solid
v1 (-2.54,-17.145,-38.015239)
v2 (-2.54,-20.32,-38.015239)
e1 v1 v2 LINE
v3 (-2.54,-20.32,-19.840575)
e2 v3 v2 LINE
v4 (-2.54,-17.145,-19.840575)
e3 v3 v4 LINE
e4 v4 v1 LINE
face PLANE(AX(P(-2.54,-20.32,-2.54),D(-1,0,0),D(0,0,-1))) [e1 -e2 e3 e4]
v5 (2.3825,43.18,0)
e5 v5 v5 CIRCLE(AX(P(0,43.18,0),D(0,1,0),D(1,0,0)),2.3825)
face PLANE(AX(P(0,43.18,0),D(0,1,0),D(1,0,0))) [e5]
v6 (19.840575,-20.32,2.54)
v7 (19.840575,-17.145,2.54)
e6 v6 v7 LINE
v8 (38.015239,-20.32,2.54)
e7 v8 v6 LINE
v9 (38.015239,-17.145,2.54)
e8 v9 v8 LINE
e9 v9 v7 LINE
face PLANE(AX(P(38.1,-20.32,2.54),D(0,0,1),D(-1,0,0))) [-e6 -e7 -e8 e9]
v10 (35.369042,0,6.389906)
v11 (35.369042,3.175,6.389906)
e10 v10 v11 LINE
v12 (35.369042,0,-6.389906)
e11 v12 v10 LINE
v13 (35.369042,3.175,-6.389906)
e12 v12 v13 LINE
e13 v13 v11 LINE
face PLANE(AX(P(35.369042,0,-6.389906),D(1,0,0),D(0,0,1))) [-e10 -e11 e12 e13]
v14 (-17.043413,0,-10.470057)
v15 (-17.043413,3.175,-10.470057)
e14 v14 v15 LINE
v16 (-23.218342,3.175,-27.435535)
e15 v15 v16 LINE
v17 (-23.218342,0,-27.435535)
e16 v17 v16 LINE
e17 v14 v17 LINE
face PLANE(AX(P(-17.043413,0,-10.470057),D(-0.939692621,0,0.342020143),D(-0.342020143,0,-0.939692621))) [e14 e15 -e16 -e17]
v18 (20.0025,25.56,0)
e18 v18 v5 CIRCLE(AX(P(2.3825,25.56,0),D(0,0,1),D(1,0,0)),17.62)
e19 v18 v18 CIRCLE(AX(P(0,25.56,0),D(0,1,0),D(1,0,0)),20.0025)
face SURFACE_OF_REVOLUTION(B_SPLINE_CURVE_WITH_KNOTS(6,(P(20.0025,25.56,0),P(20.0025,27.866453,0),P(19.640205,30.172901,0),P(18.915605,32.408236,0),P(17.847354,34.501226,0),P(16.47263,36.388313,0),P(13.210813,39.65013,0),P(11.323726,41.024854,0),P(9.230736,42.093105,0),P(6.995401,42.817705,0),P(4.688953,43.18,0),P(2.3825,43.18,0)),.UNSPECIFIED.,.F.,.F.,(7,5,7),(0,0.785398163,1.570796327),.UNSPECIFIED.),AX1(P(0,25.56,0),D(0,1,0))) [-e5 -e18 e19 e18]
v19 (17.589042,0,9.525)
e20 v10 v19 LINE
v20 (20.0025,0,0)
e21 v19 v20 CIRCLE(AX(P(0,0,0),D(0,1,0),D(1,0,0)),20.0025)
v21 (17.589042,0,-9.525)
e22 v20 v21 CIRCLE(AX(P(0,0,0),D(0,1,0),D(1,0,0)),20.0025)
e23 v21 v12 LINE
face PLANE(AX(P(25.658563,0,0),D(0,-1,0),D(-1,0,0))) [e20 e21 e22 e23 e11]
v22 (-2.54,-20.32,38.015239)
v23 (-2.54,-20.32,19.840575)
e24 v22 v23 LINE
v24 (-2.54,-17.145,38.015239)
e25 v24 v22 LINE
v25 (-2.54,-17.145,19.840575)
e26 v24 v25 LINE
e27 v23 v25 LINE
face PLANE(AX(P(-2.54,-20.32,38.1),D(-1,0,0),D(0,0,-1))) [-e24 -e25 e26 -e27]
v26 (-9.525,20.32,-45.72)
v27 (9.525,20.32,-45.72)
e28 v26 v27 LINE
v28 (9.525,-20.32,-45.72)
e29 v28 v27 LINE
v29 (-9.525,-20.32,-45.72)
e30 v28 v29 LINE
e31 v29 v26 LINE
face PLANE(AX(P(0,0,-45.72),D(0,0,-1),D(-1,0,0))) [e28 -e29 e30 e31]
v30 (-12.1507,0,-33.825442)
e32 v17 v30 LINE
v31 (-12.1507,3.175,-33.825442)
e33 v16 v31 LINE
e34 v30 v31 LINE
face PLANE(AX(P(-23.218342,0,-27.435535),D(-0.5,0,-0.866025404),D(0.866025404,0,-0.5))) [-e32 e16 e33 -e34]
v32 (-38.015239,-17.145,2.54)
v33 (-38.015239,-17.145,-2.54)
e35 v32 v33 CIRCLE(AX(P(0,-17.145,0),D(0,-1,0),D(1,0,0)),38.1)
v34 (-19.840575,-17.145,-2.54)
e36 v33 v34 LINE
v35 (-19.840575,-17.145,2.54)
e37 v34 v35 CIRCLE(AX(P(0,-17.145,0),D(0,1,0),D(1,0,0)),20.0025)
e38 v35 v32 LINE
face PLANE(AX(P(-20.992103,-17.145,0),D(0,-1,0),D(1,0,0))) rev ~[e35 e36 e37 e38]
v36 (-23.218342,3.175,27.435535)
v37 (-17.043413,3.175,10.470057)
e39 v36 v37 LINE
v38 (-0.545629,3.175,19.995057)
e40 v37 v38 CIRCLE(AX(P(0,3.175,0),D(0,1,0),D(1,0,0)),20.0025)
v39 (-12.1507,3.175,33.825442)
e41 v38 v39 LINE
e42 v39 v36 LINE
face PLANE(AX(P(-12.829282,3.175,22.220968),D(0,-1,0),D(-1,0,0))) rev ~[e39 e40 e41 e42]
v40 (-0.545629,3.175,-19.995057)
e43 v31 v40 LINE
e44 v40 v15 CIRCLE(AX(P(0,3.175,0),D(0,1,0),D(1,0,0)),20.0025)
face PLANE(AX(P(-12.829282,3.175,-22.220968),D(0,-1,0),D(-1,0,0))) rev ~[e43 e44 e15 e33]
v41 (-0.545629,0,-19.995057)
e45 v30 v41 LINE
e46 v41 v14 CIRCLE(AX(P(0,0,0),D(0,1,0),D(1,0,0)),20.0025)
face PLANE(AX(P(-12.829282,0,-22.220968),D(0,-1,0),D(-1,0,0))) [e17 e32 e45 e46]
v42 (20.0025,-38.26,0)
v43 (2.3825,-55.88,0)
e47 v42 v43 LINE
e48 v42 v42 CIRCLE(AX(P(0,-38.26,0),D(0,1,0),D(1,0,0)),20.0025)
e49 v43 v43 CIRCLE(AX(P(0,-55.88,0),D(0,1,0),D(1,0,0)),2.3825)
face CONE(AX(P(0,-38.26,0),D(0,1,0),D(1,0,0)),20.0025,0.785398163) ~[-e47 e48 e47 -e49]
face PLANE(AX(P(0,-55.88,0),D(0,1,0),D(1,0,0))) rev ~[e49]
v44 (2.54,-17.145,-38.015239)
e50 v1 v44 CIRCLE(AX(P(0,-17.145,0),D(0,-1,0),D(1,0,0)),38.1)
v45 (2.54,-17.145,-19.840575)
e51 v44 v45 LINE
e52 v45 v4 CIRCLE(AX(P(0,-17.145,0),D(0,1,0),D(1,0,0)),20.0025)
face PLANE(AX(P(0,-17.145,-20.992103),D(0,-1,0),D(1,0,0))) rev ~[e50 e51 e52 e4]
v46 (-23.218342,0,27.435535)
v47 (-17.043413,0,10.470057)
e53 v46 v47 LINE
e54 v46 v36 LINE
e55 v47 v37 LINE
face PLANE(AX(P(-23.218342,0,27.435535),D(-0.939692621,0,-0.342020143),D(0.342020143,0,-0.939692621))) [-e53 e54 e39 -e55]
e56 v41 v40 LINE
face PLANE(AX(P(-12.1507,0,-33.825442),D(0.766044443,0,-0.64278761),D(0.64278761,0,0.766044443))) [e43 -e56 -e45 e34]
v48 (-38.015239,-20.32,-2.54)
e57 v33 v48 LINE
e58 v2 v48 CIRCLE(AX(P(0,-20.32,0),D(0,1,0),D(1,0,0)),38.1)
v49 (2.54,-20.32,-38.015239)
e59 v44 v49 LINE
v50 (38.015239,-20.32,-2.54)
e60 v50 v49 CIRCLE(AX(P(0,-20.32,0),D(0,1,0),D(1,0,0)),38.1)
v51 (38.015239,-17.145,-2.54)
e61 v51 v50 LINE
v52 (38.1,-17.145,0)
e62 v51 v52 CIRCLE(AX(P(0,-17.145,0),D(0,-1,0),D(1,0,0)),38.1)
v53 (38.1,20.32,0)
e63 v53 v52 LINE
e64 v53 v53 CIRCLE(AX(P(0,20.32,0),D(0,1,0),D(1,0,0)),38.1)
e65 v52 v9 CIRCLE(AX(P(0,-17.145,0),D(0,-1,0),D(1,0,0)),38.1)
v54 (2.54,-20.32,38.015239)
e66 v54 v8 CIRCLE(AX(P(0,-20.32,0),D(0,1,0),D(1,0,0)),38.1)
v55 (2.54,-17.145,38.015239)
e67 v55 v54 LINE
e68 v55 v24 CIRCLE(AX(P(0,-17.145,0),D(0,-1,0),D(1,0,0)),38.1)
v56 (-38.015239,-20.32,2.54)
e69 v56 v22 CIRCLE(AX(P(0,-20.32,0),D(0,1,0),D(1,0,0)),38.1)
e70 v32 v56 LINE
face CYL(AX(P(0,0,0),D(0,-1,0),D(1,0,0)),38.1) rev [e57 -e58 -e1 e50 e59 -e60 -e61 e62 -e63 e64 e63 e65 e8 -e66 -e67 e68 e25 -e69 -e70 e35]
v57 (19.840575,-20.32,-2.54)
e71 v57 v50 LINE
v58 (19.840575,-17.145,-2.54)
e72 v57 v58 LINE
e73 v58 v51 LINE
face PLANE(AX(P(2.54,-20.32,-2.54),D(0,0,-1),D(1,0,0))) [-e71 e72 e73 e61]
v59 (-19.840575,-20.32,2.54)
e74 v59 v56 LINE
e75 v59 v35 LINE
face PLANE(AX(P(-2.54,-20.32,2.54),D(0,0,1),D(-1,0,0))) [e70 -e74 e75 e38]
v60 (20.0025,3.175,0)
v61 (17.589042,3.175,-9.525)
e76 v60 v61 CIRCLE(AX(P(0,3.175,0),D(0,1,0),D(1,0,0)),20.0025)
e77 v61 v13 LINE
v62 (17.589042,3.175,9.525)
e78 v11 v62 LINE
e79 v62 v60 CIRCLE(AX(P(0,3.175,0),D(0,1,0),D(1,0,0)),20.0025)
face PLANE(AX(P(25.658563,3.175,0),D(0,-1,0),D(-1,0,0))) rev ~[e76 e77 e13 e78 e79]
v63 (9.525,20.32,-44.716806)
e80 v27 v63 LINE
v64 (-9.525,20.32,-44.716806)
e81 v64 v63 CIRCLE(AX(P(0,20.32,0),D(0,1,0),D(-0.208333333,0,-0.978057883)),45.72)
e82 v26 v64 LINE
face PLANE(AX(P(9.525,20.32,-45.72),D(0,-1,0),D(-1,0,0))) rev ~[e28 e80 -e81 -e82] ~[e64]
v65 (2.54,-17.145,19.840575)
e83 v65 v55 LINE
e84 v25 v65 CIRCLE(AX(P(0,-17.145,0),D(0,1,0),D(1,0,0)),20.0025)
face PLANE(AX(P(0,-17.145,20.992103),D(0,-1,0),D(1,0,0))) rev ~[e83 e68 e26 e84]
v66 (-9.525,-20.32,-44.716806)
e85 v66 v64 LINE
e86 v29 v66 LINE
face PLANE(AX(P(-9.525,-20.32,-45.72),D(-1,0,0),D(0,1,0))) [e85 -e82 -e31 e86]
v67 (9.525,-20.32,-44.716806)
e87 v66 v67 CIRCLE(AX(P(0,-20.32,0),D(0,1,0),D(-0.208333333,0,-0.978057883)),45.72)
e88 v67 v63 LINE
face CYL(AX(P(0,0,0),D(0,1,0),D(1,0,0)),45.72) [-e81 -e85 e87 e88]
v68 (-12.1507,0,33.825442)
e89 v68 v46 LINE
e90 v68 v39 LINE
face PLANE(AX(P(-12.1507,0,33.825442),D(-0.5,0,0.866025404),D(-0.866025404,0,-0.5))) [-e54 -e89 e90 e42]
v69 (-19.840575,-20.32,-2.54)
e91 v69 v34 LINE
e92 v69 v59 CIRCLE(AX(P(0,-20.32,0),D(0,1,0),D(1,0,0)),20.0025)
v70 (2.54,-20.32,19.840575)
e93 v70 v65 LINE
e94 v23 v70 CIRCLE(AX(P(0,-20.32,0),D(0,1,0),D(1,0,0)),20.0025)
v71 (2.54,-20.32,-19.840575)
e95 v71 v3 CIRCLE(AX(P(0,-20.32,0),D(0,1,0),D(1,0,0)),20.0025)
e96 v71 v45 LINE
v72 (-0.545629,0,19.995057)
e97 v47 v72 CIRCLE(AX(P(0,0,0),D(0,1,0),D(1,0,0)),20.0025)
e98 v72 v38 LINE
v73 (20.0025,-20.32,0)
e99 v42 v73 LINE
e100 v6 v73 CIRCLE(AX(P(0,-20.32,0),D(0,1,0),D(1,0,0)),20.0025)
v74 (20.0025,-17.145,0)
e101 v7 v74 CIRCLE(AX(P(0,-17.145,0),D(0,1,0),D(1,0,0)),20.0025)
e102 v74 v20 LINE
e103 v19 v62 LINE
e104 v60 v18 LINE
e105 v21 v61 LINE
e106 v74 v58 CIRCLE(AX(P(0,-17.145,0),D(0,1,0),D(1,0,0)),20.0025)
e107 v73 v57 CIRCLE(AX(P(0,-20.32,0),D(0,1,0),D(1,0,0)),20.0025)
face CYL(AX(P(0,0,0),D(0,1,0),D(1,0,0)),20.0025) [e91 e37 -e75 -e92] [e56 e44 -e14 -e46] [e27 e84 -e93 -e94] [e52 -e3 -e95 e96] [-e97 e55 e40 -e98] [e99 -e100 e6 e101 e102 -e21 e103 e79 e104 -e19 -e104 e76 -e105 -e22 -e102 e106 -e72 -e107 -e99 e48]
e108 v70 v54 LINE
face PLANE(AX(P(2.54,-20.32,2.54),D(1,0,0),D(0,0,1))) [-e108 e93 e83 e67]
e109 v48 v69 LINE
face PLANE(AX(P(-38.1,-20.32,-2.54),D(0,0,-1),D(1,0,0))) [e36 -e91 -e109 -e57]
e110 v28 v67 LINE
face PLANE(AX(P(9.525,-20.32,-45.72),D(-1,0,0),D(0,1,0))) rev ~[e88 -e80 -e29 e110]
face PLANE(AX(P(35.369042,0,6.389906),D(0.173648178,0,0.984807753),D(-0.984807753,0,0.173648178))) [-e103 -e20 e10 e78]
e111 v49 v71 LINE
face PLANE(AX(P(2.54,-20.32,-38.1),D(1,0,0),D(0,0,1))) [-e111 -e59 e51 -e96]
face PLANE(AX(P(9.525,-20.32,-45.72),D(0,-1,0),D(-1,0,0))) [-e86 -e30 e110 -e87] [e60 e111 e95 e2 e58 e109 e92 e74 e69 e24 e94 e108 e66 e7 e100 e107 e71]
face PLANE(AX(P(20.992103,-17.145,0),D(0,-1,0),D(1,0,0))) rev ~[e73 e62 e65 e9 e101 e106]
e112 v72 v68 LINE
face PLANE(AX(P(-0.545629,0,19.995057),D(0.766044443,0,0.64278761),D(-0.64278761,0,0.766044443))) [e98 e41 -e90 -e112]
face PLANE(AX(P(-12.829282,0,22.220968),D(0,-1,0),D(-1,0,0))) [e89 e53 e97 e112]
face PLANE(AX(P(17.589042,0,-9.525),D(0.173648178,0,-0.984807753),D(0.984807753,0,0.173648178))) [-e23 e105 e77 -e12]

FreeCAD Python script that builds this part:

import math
import FreeCAD as App
import Part
import Sketcher

V = App.Vector
Q = App.Units.Quantity


def edges_at(feature, points):
    """Names of the edges that pass closest to the given points."""
    edges = feature.Shape.Edges
    near = lambda p: min(range(len(edges)), key=lambda i: edges[i].distToShape(Part.Vertex(*p))[0])
    return sorted({f"Edge{near(p) + 1}" for p in points})


def add_polygon(sketch, points):
    """Adds a closed chain of lines whose ends are joined by coincident constraints."""
    first, n = sketch.GeometryCount, len(points)
    for a, b in zip(points, points[1:] + points[:1]):
        sketch.addGeometry(Part.LineSegment(App.Vector(*a, 0), App.Vector(*b, 0)), False)
    for i in range(n):
        sketch.addConstraint(Sketcher.Constraint("Coincident", first + i, 2, first + (i + 1) % n, 1))

doc = App.newDocument("Part")
body = doc.addObject("PartDesign::Body", "Body")

# Sketch on XZ plane
sketch1 = doc.addObject("Sketcher::SketchObject", "Sketch")
body.addObject(sketch1)
sketch1.AttachmentSupport = (doc.XZ_Plane, [""])
sketch1.MapMode = "FlatFace"
sketch1.addGeometry(Part.Circle(V(0, 0, 0), V(0, 0, 1), 46), False)
sketch1.addGeometry(Part.Circle(V(0, 0, 0), V(0, 0, 1), 38), False)
sketch1.addConstraint(Sketcher.Constraint("Coincident", 0, 3, -1, 1))
sketch1.addConstraint(Sketcher.Constraint("Coincident", 1, 3, -1, 1))
sketch1.addConstraint(Sketcher.Constraint("Diameter", 1, Q("3 in")))
sketch1.addConstraint(Sketcher.Constraint("Diameter", 0, Q("3.6 in")))
pad1 = doc.addObject("PartDesign::Pad", "Pad")
body.addObject(pad1)
pad1.Profile = sketch1
pad1.Type = "TwoLengths"
pad1.Length = Q("0.8 in")
pad1.Length2 = Q("0.8 in")
pad1.Reversed = True
body2 = doc.addObject("PartDesign::Body", "Body001")

# Sketch on XZ plane
sketch2 = doc.addObject("Sketcher::SketchObject", "Sketch001")
body2.addObject(sketch2)
sketch2.AttachmentSupport = (doc.getObject("XZ_Plane001"), [""])
sketch2.MapMode = "FlatFace"
sketch2.addGeometry(Part.Circle(V(0, 0, 0), V(0, 0, 1), 20), False)
sketch2.addConstraint(Sketcher.Constraint("Coincident", 0, 3, -1, 1))
sketch2.addConstraint(Sketcher.Constraint("Diameter", 0, Q("1.575 in")))
pad2 = doc.addObject("PartDesign::Pad", "Pad001")
body2.addObject(pad2)
pad2.Profile = sketch2
pad2.Type = "TwoLengths"
pad2.Length = Q("1.7 in")
pad2.Length2 = Q("2.2 in")
pad2.Reversed = True
doc.recompute()

chamfer = doc.addObject("PartDesign::Chamfer", "Chamfer")
body2.addObject(chamfer)
chamfer.Base = (pad2, edges_at(pad2, [(-20.003, -55.88, 0)]))
chamfer.Size = 17.62
doc.recompute()

fillet = doc.addObject("PartDesign::Fillet", "Fillet")
body2.addObject(fillet)
fillet.Base = (chamfer, edges_at(chamfer, [(-20.003, 43.18, 0)]))
fillet.Radius = 17.62

# Sketch on XZ plane
sketch3 = doc.addObject("Sketcher::SketchObject", "Sketch002")
body2.addObject(sketch3)
sketch3.AttachmentSupport = (doc.getObject("XZ_Plane001"), [""])
sketch3.MapMode = "FlatFace"
add_polygon(sketch3, [(35, -6), (18, -10), (18, 10), (35, 6)])  # lines 0-3
add_polygon(sketch3, [(-17, 10), (-23, 27), (-12, 34), (-1, 20)])  # lines 4-7
add_polygon(sketch3, [(-1, -20), (-12, -34), (-23, -27), (-17, -10)])  # lines 8-11
sketch3.addConstraint(Sketcher.Constraint("Vertical", 1))
sketch3.addConstraint(Sketcher.Constraint("Vertical", 3))
sketch3.addConstraint(Sketcher.Constraint("Symmetric", 5, 2, 8, 2, -1))
sketch3.addConstraint(Sketcher.Constraint("Symmetric", 4, 2, 9, 2, -1))
sketch3.addConstraint(Sketcher.Constraint("Symmetric", 7, 2, 10, 2, -1))
sketch3.addConstraint(Sketcher.Constraint("Symmetric", 6, 2, 11, 2, -1))
sketch3.addConstraint(Sketcher.Constraint("Parallel", 5, 7))
sketch3.addConstraint(Sketcher.Constraint("Equal", 0, 2))
sketch3.addConstraint(Sketcher.Constraint("Equal", 2, 4))
sketch3.addConstraint(Sketcher.Constraint("Equal", 4, 6))
sketch3.addConstraint(Sketcher.Constraint("Angle", 0, Q("-170 deg")))
sketch3.addConstraint(Sketcher.Constraint("Angle", 4, Q("110 deg")))
sketch3.addConstraint(Sketcher.Constraint("Angle", 5, Q("30 deg")))
sketch3.addConstraint(Sketcher.Constraint("DistanceY", 1, 1, 1, 2, Q("0.75 in")))
sketch3.addConstraint(Sketcher.Constraint("DistanceX", 1, 2, 2, 2, Q("0.7 in")))
sketch3.addConstraint(Sketcher.Constraint("Distance", 7, Q("0.75 in")))
sketch3.addConstraint(Sketcher.Constraint("DistanceY", 0, 2, -1, 1, Q("0.375 in")))
sketch3.addConstraint(Sketcher.Constraint("DistanceX", 5, 2, -1, 1, 12.1507))
sketch3.addConstraint(Sketcher.Constraint("DistanceY", 8, 2, 7, 2, 44.295498))
sketch3.addConstraint(Sketcher.Constraint("DistanceX", -1, 1, 0, 2, 17.589042))
pad3 = doc.addObject("PartDesign::Pad", "Pad002")
body2.addObject(pad3)
pad3.Profile = sketch3
pad3.Length = Q("0.125 in")
pad3.Reversed = True
body.AllowCompound = True
doc.recompute()

boolean = doc.addObject("PartDesign::Boolean", "Boolean")
body.addObject(boolean)
boolean.Type = "Fuse"
boolean.addObjects([body2])

# Sketch on XZ plane
sketch4 = doc.addObject("Sketcher::SketchObject", "Sketch003")
body.addObject(sketch4)
sketch4.AttachmentSupport = (doc.XZ_Plane, [""])
sketch4.MapMode = "FlatFace"
sketch4.AttachmentOffset = App.Placement(V(0, 0, 0.8 * 25.4), App.Rotation())
sketch4.addGeometry(Part.ArcOfCircle(Part.Circle(V(38.1, 0, 0), V(0, 0, 1), 2.5), math.radians(-90), math.radians(90)), False)
sketch4.addGeometry(Part.LineSegment(V(38.1, 2.5, 0), V(2.5, 2.5, 0)), False)
sketch4.addGeometry(Part.LineSegment(V(2.5, 2.5, 0), V(2.5, -2.5, 0)), False)
sketch4.addGeometry(Part.LineSegment(V(2.5, -2.5, 0), V(38.1, -2.5, 0)), False)
sketch4.addGeometry(Part.LineSegment(V(-2.5, 2.5, 0), V(2.5, 2.5, 0)), False)
sketch4.addGeometry(Part.LineSegment(V(2.5, 2.5, 0), V(2.5, 38.1, 0)), False)
sketch4.addGeometry(Part.ArcOfCircle(Part.Circle(V(0, 38.1, 0), V(0, 0, 1), 2.5), math.radians(0), math.radians(180)), False)
sketch4.addGeometry(Part.LineSegment(V(-2.5, 38.1, 0), V(-2.5, 2.5, 0)), False)
sketch4.addGeometry(Part.LineSegment(V(2.5, -38.1, 0), V(2.5, -2.5, 0)), False)
sketch4.addGeometry(Part.LineSegment(V(2.5, -2.5, 0), V(-2.5, -2.5, 0)), False)
sketch4.addGeometry(Part.LineSegment(V(-2.5, -2.5, 0), V(-2.5, -38.1, 0)), False)
sketch4.addGeometry(Part.ArcOfCircle(Part.Circle(V(0, -38.1, 0), V(0, 0, 1), 2.5), math.radians(180), math.radians(360)), False)
sketch4.addGeometry(Part.LineSegment(V(-2.5, -2.5, 0), V(-2.5, 2.5, 0)), False)
sketch4.addGeometry(Part.LineSegment(V(-2.5, 2.5, 0), V(-38.1, 2.5, 0)), False)
sketch4.addGeometry(Part.ArcOfCircle(Part.Circle(V(-38.1, 0, 0), V(0, 0, 1), 2.5), math.radians(90), math.radians(270)), False)
sketch4.addGeometry(Part.LineSegment(V(-38.1, -2.5, 0), V(-2.5, -2.5, 0)), False)
sketch4.addConstraint(Sketcher.Constraint("Tangent", 0, 2, 1, 1))
sketch4.addConstraint(Sketcher.Constraint("Coincident", 1, 2, 2, 1))
sketch4.addConstraint(Sketcher.Constraint("Coincident", 2, 2, 3, 1))
sketch4.addConstraint(Sketcher.Constraint("Tangent", 3, 2, 0, 1))
sketch4.addConstraint(Sketcher.Constraint("Coincident", 4, 2, 5, 1))
sketch4.addConstraint(Sketcher.Constraint("Tangent", 5, 2, 6, 1))
sketch4.addConstraint(Sketcher.Constraint("Tangent", 6, 2, 7, 1))
sketch4.addConstraint(Sketcher.Constraint("Coincident", 7, 2, 4, 1))
sketch4.addConstraint(Sketcher.Constraint("Coincident", 8, 2, 9, 1))
sketch4.addConstraint(Sketcher.Constraint("Coincident", 9, 2, 10, 1))
sketch4.addConstraint(Sketcher.Constraint("Tangent", 10, 2, 11, 1))
sketch4.addConstraint(Sketcher.Constraint("Tangent", 11, 2, 8, 1))
sketch4.addConstraint(Sketcher.Constraint("Coincident", 12, 2, 13, 1))
sketch4.addConstraint(Sketcher.Constraint("Tangent", 13, 2, 14, 1))
sketch4.addConstraint(Sketcher.Constraint("Tangent", 14, 2, 15, 1))
sketch4.addConstraint(Sketcher.Constraint("Coincident", 15, 2, 12, 1))
sketch4.addConstraint(Sketcher.Constraint("Horizontal", 1))
sketch4.addConstraint(Sketcher.Constraint("Vertical", 2))
sketch4.addConstraint(Sketcher.Constraint("Horizontal", 3))
sketch4.addConstraint(Sketcher.Constraint("Horizontal", 4))
sketch4.addConstraint(Sketcher.Constraint("Vertical", 5))
sketch4.addConstraint(Sketcher.Constraint("Vertical", 7))
sketch4.addConstraint(Sketcher.Constraint("Vertical", 8))
sketch4.addConstraint(Sketcher.Constraint("Horizontal", 9))
sketch4.addConstraint(Sketcher.Constraint("Vertical", 10))
sketch4.addConstraint(Sketcher.Constraint("Vertical", 12))
sketch4.addConstraint(Sketcher.Constraint("Horizontal", 13))
sketch4.addConstraint(Sketcher.Constraint("Horizontal", 15))
sketch4.addConstraint(Sketcher.Constraint("Coincident", 4, 2, 1, 2))
sketch4.addConstraint(Sketcher.Constraint("Coincident", 8, 2, 2, 2))
sketch4.addConstraint(Sketcher.Constraint("Coincident", 12, 2, 7, 2))
sketch4.addConstraint(Sketcher.Constraint("Coincident", 15, 2, 9, 2))
sketch4.addConstraint(Sketcher.Constraint("Equal", 0, 6))
sketch4.addConstraint(Sketcher.Constraint("Symmetric", 6, 3, 11, 3, -1, 1))
sketch4.addConstraint(Sketcher.Constraint("Symmetric", 0, 3, 14, 3, -1, 1))
sketch4.addConstraint(Sketcher.Constraint("Equal", 15, 5))
sketch4.addConstraint(Sketcher.Constraint("Radius", 0, Q("0.1 in")))
sketch4.addConstraint(Sketcher.Constraint("DistanceX", 1, 2, 1, 1, Q("1.4 in")))
pad4 = doc.addObject("PartDesign::Pad", "Pad003")
body.addObject(pad4)
pad4.Profile = sketch4
pad4.Length = Q("0.125 in")
pad4.Reversed = True

# Sketch on XY plane
sketch5 = doc.addObject("Sketcher::SketchObject", "Sketch004")
body.addObject(sketch5)
sketch5.AttachmentSupport = (doc.XY_Plane, [""])
sketch5.MapMode = "FlatFace"
sketch5.AttachmentOffset = App.Placement(V(0, 0, -1.8 * 25.4), App.Rotation())
add_polygon(sketch5, [(10, 20), (10, -20), (-10, -20), (-10, 20)])  # lines 0-3
sketch5.addConstraint(Sketcher.Constraint("Vertical", 0))
sketch5.addConstraint(Sketcher.Constraint("Horizontal", 1))
sketch5.addConstraint(Sketcher.Constraint("Vertical", 2))
sketch5.addConstraint(Sketcher.Constraint("Horizontal", 3))
sketch5.addConstraint(Sketcher.Constraint("Symmetric", 0, 2, 2, 2, -1, 1))
sketch5.addConstraint(Sketcher.Constraint("DistanceY", 0, 2, 0, 1, Q("1.6 in")))
sketch5.addConstraint(Sketcher.Constraint("DistanceX", 1, 2, 1, 1, Q("0.75 in")))
pad5 = doc.addObject("PartDesign::Pad", "Pad004")
body.addObject(pad5)
pad5.Profile = sketch5
pad5.Length = Q("0.125 in")

doc.recompute()
